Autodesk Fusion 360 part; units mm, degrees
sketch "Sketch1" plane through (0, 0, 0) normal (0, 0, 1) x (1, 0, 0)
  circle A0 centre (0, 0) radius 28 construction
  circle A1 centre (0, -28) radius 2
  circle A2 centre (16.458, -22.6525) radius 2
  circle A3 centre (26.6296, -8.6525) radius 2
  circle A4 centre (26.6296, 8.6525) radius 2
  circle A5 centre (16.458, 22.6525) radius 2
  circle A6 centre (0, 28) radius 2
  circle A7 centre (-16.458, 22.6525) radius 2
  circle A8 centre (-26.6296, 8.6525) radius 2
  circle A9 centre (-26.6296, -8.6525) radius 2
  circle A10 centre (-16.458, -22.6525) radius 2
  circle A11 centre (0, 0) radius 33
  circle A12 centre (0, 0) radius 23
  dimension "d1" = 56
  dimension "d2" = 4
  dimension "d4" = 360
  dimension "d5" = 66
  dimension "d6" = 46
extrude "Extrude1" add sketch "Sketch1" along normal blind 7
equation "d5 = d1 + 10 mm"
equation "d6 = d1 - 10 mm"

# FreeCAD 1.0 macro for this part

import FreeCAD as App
import Part
import Sketcher
Q = App.Units.Quantity

doc = App.newDocument("Part")
body = doc.addObject("PartDesign::Body", "Body")

# Sketch on XY plane
sketch1 = body.newObject("Sketcher::SketchObject", "Sketch")
sketch1.AttachmentSupport = (doc.getObject("XY_Plane"), [""])
sketch1.MapMode = "FlatFace"
sketch1.addGeometry([
    Part.Circle(App.Vector(0, 0, 0), App.Vector(0, 0, 1), 33),  # 0
    Part.Circle(App.Vector(-16.5, -22.7, 0), App.Vector(0, 0, 1), 2),  # 1
    Part.Circle(App.Vector(-26.6, -8.7, 0), App.Vector(0, 0, 1), 2),  # 2
    Part.Circle(App.Vector(0, -28, 0), App.Vector(0, 0, 1), 2),  # 3
    Part.Circle(App.Vector(16.5, -22.7, 0), App.Vector(0, 0, 1), 2),  # 4
    Part.Circle(App.Vector(26.6, -8.7, 0), App.Vector(0, 0, 1), 2),  # 5
    Part.Circle(App.Vector(-26.6, 8.7, 0), App.Vector(0, 0, 1), 2),  # 6
    Part.Circle(App.Vector(-16.5, 22.7, 0), App.Vector(0, 0, 1), 2),  # 7
    Part.Circle(App.Vector(0, 0, 0), App.Vector(0, 0, 1), 23),  # 8
    Part.Circle(App.Vector(26.6, 8.7, 0), App.Vector(0, 0, 1), 2),  # 9
    Part.Circle(App.Vector(16.5, 22.7, 0), App.Vector(0, 0, 1), 2),  # 10
    Part.Circle(App.Vector(0, 28, 0), App.Vector(0, 0, 1), 2),  # 11
], False)
sketch1.addConstraint([
    Sketcher.Constraint("Coincident", 0, 3, -1, 1),
    Sketcher.Constraint("Coincident", 8, 3, -1, 1),
    Sketcher.Constraint("Equal", 1, 2),
    Sketcher.Constraint("Equal", 2, 3),
    Sketcher.Constraint("Equal", 3, 4),
    Sketcher.Constraint("Equal", 4, 5),
    Sketcher.Constraint("Equal", 5, 6),
    Sketcher.Constraint("Equal", 6, 7),
    Sketcher.Constraint("Equal", 7, 9),
    Sketcher.Constraint("Equal", 9, 10),
    Sketcher.Constraint("Equal", 10, 11),
    Sketcher.Constraint("Symmetric", 5, 3, 6, 3, -1, 1),
    Sketcher.Constraint("Symmetric", 4, 3, 7, 3, -1, 1),
    Sketcher.Constraint("Symmetric", 2, 3, 9, 3, -1, 1),
    Sketcher.Constraint("Symmetric", 1, 3, 10, 3, -1, 1),
    Sketcher.Constraint("Symmetric", 3, 3, 11, 3, -1, 1),
    Sketcher.Constraint("Symmetric", 1, 3, 4, 3, -2),
    Sketcher.Constraint("Symmetric", 2, 3, 5, 3, -2),
    Sketcher.Constraint("PointOnObject", 3, 3, -2),
    Sketcher.Constraint("Diameter", 0, Q("66 mm")),
    Sketcher.Constraint("Diameter", 1, Q("4 mm")),
    Sketcher.Constraint("Diameter", 8, Q("46 mm")),
    Sketcher.Constraint("DistanceY", 3, 3, -1, 1, Q("28 mm")),
    Sketcher.Constraint("DistanceY", 1, 3, 2, 3, Q("14 mm")),
    Sketcher.Constraint("DistanceX", 1, 3, -1, 1, Q("16.458 mm")),
    Sketcher.Constraint("DistanceY", 2, 3, 6, 3, Q("17.305 mm")),
    Sketcher.Constraint("DistanceX", 2, 3, -1, 1, Q("26.6296 mm")),
])
pad1 = body.newObject("PartDesign::Pad", "Pad")
pad1.Profile = sketch1
pad1.Length = 7

doc.recompute()
